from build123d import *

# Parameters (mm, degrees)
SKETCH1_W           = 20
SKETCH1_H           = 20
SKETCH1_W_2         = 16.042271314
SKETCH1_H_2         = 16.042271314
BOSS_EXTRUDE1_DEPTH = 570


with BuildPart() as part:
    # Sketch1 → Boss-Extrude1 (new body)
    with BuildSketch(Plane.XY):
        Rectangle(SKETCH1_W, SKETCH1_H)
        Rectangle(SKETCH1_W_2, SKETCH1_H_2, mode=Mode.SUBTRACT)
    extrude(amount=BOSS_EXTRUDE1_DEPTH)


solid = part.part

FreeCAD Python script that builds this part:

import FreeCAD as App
import Part
import Sketcher
from FreeCAD import Vector
Q = App.Units.Quantity


def add_polygon(sketch, points):
    """Adds a closed chain of lines whose ends are joined by coincident constraints."""
    first, n = sketch.GeometryCount, len(points)
    for a, b in zip(points, points[1:] + points[:1]):
        sketch.addGeometry(Part.LineSegment(App.Vector(*a, 0), App.Vector(*b, 0)), False)
    for i in range(n):
        sketch.addConstraint(Sketcher.Constraint("Coincident", first + i, 2, first + (i + 1) % n, 1))

doc = App.newDocument("Part")
body = doc.addObject("PartDesign::Body", "Body")

# Sketch on XY plane
sketch1 = body.newObject("Sketcher::SketchObject", "Sketch")
sketch1.AttachmentSupport = (doc.getObject("XY_Plane"), [""])
sketch1.MapMode = "FlatFace"
add_polygon(sketch1, [(-10, 10), (-10, -10), (10, -10), (10, 10)])  # lines 0-3
add_polygon(sketch1, [(8.021136, -8.021136), (-8.021136, -8.021136), (-8.021136, 8.021136), (8.021136, 8.021136)])  # lines 4-7
sketch1.addConstraint(Sketcher.Constraint("Vertical", 0))
sketch1.addConstraint(Sketcher.Constraint("Horizontal", 1))
sketch1.addConstraint(Sketcher.Constraint("Vertical", 2))
sketch1.addConstraint(Sketcher.Constraint("Horizontal", 3))
sketch1.addConstraint(Sketcher.Constraint("Horizontal", 4))
sketch1.addConstraint(Sketcher.Constraint("Vertical", 5))
sketch1.addConstraint(Sketcher.Constraint("Horizontal", 6))
sketch1.addConstraint(Sketcher.Constraint("Vertical", 7))
sketch1.addConstraint(Sketcher.Constraint("Symmetric", 0, 2, 2, 2, -1, 1))
sketch1.addConstraint(Sketcher.Constraint("Symmetric", 4, 2, 6, 2, -1, 1))
sketch1.addConstraint(Sketcher.Constraint("Equal", 3, 0))
sketch1.addConstraint(Sketcher.Constraint("Equal", 6, 5))
sketch1.addConstraint(Sketcher.Constraint("DistanceX", 1, 1, 1, 2, Q("20 mm")))
sketch1.addConstraint(Sketcher.Constraint("DistanceX", 4, 2, 4, 1, Q("16.042271 mm")))
pad1 = body.newObject("PartDesign::Pad", "Pad")
pad1.Profile = sketch1
pad1.Length = 570

doc.recompute()
